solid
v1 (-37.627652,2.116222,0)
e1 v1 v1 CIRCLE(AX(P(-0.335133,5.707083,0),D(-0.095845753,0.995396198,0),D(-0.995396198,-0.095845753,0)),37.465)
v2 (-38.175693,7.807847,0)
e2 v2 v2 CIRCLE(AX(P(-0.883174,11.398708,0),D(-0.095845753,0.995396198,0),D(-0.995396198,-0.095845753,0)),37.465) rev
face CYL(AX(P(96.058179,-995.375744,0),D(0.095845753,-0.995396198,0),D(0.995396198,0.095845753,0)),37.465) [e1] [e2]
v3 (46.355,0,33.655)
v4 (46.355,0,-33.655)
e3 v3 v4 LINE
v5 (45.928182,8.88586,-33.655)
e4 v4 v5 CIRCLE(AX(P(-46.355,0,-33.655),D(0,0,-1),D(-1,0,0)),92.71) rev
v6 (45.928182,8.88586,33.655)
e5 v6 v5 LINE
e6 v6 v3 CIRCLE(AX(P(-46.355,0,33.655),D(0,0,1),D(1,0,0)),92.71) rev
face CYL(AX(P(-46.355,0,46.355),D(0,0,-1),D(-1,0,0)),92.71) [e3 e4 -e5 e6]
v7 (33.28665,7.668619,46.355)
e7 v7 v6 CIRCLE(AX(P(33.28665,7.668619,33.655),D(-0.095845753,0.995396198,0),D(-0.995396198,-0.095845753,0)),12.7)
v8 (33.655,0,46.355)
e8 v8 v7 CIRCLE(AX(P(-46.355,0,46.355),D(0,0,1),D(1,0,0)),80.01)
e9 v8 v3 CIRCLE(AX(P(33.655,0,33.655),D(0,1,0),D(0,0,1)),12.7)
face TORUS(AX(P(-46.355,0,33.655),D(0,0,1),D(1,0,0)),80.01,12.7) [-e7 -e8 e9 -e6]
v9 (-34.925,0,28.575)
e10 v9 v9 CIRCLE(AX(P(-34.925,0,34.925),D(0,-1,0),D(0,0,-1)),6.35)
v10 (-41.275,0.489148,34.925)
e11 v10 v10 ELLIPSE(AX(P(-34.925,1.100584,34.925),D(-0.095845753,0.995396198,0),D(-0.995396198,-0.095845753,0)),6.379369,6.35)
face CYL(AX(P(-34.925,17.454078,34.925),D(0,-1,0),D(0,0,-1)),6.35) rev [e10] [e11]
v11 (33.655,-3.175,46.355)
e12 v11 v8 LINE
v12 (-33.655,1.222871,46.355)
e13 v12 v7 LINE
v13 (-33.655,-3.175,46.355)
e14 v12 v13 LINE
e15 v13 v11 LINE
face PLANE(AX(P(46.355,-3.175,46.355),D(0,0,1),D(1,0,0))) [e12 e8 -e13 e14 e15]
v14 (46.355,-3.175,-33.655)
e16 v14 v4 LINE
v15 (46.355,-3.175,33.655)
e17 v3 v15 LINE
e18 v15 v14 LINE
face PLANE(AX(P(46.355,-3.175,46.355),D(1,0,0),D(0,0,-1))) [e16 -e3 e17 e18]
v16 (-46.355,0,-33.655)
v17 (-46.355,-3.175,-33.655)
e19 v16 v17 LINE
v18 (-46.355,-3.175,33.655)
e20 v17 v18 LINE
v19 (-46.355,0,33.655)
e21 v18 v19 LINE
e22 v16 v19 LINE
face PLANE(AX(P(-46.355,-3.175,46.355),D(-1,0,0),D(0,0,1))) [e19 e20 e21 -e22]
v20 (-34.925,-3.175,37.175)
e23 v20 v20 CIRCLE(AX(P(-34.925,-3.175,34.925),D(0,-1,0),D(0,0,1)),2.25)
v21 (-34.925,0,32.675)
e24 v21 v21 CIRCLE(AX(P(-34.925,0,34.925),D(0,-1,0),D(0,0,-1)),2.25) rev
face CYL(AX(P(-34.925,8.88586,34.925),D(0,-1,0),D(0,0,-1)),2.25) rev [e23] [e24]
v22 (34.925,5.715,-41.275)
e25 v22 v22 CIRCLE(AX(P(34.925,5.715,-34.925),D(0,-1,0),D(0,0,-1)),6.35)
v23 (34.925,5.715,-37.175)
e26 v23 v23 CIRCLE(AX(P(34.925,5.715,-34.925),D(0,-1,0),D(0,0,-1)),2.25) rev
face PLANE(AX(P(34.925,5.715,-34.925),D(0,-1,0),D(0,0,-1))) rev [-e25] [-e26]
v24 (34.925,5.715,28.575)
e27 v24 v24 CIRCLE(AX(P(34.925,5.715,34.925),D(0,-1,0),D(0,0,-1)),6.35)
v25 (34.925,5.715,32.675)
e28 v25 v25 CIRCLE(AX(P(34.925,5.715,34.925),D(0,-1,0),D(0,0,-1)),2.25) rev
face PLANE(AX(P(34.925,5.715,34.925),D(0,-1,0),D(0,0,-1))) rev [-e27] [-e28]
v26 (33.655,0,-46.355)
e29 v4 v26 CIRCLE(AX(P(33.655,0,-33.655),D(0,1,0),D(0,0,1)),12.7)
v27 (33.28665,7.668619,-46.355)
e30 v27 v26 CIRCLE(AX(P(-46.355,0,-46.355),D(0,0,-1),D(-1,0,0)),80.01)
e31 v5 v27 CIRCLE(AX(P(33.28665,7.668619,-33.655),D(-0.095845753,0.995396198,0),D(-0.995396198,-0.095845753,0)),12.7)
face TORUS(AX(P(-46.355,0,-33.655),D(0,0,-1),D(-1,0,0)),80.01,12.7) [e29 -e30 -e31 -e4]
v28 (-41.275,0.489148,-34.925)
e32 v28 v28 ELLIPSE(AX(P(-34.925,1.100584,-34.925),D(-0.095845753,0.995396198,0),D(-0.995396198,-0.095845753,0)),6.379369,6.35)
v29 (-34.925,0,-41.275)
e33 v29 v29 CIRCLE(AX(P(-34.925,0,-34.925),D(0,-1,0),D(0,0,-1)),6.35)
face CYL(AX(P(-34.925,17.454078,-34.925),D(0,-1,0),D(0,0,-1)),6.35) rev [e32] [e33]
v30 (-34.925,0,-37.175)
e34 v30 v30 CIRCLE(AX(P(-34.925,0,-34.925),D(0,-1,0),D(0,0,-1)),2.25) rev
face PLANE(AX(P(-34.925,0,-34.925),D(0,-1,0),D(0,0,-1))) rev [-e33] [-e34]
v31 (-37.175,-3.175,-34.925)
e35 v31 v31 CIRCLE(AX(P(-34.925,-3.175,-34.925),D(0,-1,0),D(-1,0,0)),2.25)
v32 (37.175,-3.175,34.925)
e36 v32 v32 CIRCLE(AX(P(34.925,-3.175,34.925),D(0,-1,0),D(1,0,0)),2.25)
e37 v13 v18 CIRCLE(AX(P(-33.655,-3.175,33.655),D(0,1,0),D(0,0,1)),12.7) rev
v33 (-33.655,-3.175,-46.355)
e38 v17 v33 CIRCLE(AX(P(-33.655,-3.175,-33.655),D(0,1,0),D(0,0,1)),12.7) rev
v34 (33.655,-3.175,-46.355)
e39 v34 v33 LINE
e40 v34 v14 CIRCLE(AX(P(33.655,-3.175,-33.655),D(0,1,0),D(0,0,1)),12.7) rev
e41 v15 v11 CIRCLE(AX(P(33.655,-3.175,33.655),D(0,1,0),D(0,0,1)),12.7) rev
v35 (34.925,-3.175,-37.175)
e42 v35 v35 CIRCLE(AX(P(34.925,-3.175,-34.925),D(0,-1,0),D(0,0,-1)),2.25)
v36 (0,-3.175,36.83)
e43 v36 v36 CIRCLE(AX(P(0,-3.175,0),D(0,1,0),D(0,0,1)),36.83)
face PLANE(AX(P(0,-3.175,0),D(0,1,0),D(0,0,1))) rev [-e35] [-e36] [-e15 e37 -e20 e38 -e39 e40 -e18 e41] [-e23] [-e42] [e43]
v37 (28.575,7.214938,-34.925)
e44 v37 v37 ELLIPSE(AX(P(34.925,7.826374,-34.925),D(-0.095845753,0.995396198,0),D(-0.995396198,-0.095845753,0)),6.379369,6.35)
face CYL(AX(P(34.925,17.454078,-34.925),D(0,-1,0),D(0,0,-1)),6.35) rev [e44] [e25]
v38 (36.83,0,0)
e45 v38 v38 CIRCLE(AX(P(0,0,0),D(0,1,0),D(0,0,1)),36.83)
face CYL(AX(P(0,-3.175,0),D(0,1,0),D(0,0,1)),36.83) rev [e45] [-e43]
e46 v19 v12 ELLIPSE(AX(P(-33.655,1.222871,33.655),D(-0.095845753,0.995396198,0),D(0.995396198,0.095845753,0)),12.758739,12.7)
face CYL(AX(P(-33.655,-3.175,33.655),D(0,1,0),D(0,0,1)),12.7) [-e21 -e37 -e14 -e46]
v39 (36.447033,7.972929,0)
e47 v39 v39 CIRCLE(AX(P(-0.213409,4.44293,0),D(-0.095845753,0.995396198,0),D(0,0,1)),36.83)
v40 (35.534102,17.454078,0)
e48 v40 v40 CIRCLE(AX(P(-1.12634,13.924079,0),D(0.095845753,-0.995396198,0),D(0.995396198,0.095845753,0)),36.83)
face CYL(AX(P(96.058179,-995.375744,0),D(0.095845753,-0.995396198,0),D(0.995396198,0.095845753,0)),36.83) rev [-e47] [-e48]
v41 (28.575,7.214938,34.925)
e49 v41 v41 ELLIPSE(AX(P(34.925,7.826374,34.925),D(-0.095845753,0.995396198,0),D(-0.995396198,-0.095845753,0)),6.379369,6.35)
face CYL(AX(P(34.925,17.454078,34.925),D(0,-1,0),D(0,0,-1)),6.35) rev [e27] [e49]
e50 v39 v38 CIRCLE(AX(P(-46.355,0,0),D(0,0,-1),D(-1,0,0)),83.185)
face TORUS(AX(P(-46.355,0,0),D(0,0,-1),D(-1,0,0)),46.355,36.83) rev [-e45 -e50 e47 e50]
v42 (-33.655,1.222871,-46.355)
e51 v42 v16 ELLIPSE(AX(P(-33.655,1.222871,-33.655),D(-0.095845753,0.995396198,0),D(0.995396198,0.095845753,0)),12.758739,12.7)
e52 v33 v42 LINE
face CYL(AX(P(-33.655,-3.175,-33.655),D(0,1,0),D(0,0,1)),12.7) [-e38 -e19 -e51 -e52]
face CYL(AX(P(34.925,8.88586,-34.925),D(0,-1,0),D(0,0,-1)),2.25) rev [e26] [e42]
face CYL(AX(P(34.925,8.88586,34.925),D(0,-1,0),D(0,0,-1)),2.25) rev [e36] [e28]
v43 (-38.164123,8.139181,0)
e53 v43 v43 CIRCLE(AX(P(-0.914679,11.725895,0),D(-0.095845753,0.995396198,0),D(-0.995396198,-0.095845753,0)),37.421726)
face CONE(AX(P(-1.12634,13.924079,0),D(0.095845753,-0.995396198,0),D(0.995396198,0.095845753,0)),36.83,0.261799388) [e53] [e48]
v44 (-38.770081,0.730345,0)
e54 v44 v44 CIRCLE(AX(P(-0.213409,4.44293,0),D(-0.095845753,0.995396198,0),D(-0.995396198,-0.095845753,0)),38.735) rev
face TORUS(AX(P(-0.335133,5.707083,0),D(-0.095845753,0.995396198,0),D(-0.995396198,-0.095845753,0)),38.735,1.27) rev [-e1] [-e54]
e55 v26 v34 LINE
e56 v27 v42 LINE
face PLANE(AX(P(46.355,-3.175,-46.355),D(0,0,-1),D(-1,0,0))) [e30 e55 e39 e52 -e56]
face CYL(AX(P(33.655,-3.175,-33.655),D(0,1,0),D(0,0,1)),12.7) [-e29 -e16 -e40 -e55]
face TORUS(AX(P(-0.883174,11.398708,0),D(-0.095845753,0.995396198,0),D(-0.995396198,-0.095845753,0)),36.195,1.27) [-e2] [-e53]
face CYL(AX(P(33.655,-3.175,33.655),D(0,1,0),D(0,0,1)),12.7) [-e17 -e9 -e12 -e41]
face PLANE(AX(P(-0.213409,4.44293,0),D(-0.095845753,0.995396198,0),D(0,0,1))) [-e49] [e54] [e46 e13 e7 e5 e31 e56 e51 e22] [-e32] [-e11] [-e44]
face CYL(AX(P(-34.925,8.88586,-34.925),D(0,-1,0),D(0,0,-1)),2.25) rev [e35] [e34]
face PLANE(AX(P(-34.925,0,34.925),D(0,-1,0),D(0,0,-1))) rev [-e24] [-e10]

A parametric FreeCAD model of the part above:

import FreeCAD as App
import Part
import Sketcher

V = App.Vector
Q = App.Units.Quantity


def edges_at(feature, points):
    """Names of the edges that pass closest to the given points."""
    edges = feature.Shape.Edges
    near = lambda p: min(range(len(edges)), key=lambda i: edges[i].distToShape(Part.Vertex(*p))[0])
    return sorted({f"Edge{near(p) + 1}" for p in points})

doc = App.newDocument("Part")
body = doc.addObject("PartDesign::Body", "Body")

# Sketch on XZ plane
sketch1 = doc.addObject("Sketcher::SketchObject", "Sketch")
body.addObject(sketch1)
sketch1.AttachmentSupport = (doc.XZ_Plane, [""])
sketch1.MapMode = "FlatFace"
sketch1.addGeometry([
    Part.LineSegment(V(-46, -46, 0), V(-46, 46, 0)),  # 0
    Part.LineSegment(V(-46, 46, 0), V(46, 46, 0)),  # 1
    Part.LineSegment(V(46, 46, 0), V(46, -46, 0)),  # 2
    Part.LineSegment(V(46, -46, 0), V(-46, -46, 0)),  # 3
    Part.Circle(V(0, 0, 0), V(0, 0, 1), 37),  # 4
], False)
sketch1.addConstraint([
    Sketcher.Constraint("Coincident", 0, 2, 1, 1),
    Sketcher.Constraint("Coincident", 1, 2, 2, 1),
    Sketcher.Constraint("Coincident", 2, 2, 3, 1),
    Sketcher.Constraint("Coincident", 3, 2, 0, 1),
    Sketcher.Constraint("Vertical", 0),
    Sketcher.Constraint("Horizontal", 1),
    Sketcher.Constraint("Vertical", 2),
    Sketcher.Constraint("Horizontal", 3),
    Sketcher.Constraint("Coincident", 4, 3, -1, 1),
    Sketcher.Constraint("Symmetric", 0, 2, 2, 2, -1, 1),
    Sketcher.Constraint("Equal", 3, 0),
    Sketcher.Constraint("Diameter", 4, Q("2.9 in")),
    Sketcher.Constraint("DistanceX", 1, 1, 1, 2, Q("3.65 in")),
])
pad1 = doc.addObject("PartDesign::Pad", "Pad")
body.addObject(pad1)
pad1.Profile = sketch1
pad1.Length = Q("0.125 in")

# Sketch on XZ plane
sketch2 = doc.addObject("Sketcher::SketchObject", "Sketch001")
body.addObject(sketch2)
sketch2.AttachmentSupport = (doc.XZ_Plane, [""])
sketch2.MapMode = "FlatFace"
sketch2.addGeometry([
    Part.LineSegment(V(-46, -46, 0), V(-46, 46, 0)),  # 0
    Part.LineSegment(V(-46, 46, 0), V(46, 46, 0)),  # 1
    Part.LineSegment(V(46, 46, 0), V(46, -46, 0)),  # 2
    Part.LineSegment(V(46, -46, 0), V(-46, -46, 0)),  # 3
    Part.Circle(V(0, 0, 0), V(0, 0, 1), 37),  # 4
], False)
sketch2.addGeometry(Part.LineSegment(V(-46, -46, 0), V(-46, 46, 0)), True)  # axis
sketch2.addConstraint([
    Sketcher.Constraint("Coincident", 0, 2, 1, 1),
    Sketcher.Constraint("Coincident", 1, 2, 2, 1),
    Sketcher.Constraint("Coincident", 2, 2, 3, 1),
    Sketcher.Constraint("Coincident", 3, 2, 0, 1),
    Sketcher.Constraint("Vertical", 0),
    Sketcher.Constraint("Horizontal", 1),
    Sketcher.Constraint("Vertical", 2),
    Sketcher.Constraint("Horizontal", 3),
    Sketcher.Constraint("Vertical", 5),
    Sketcher.Constraint("Coincident", 4, 3, -1, 1),
    Sketcher.Constraint("Coincident", 5, 1, 3, 2),
    Sketcher.Constraint("Symmetric", 0, 2, 2, 2, -1, 1),
    Sketcher.Constraint("Horizontal", 1, 2, 5, 2),
    Sketcher.Constraint("Equal", 3, 0),
    Sketcher.Constraint("Diameter", 4, Q("2.9 in")),
    Sketcher.Constraint("DistanceX", 1, 1, 1, 2, Q("3.65 in")),
])
revolution = doc.addObject("PartDesign::Revolution", "Revolution")
body.addObject(revolution)
revolution.Profile = sketch2
revolution.ReferenceAxis = (sketch2, ["Axis0"])
revolution.Angle = 5.5

# Sketch on XZ plane
sketch3 = doc.addObject("Sketcher::SketchObject", "Sketch002")
body.addObject(sketch3)
sketch3.AttachmentSupport = (doc.XZ_Plane, [""])
sketch3.MapMode = "FlatFace"
sketch3.AttachmentOffset = App.Placement(V(0, 0, 0.125 * 25.4), App.Rotation())
sketch3.addGeometry(Part.Circle(V(34.9, -34.9, 0), V(0, 0, 1), 2.2), False)
sketch3.addConstraint([
    Sketcher.Constraint("Diameter", 0, 4.5),
    Sketcher.Constraint("DistanceX", -1, 1, 0, 3, Q("1.375 in")),
    Sketcher.Constraint("DistanceY", 0, 3, -1, 1, Q("1.375 in")),
])
pocket1 = doc.addObject("PartDesign::Pocket", "Pocket")
body.addObject(pocket1)
pocket1.Profile = sketch3
pocket1.Type = "ThroughAll"
doc.recompute()

polarpattern = doc.addObject("PartDesign::PolarPattern", "PolarPattern")
body.addObject(polarpattern)
polarpattern.Originals = [pocket1]
polarpattern.Axis = (doc.Y_Axis, [""])
polarpattern.Angle = 360
polarpattern.Occurrences = 4
body.Tip = polarpattern
doc.recompute()

fillet = doc.addObject("PartDesign::Fillet", "Fillet")
body.addObject(fillet)
fillet.Base = (polarpattern, edges_at(polarpattern, [
    (46.248, 4.448, 46.355),
    (46.248, 4.448, -46.355),
    (-46.355, -1.587, -46.355),
    (46.355, -1.587, -46.355),
    (46.355, -1.587, 46.355),
    (-46.355, -1.587, 46.355),
]))
fillet.Radius = Q("0.5 in")

# Sketch on XY plane
sketch4 = doc.addObject("Sketcher::SketchObject", "Sketch003")
body.addObject(sketch4)
sketch4.AttachmentSupport = (doc.XY_Plane, [""])
sketch4.MapMode = "FlatFace"
sketch4.addGeometry([
    Part.LineSegment(V(-37.5, 0.9, 0), V(-36.9, 0.9, 0)),
    Part.LineSegment(V(-36.9, 0.9, 0), V(-37.8, 10.4, 0)),
    Part.LineSegment(V(-37.8, 10.4, 0), V(-38.2, 8, 0)),
    Part.LineSegment(V(-38.2, 8, 0), V(-37.5, 0.9, 0)),
], False)
sketch4.addGeometry(Part.LineSegment(V(-0.2, 4.4, 0), V(-1.1, 13.9, 0)), True)  # axis
sketch4.addConstraint([
    Sketcher.Constraint("Coincident", 0, 2, 1, 1),
    Sketcher.Constraint("Coincident", 1, 2, 2, 1),
    Sketcher.Constraint("Coincident", 2, 2, 3, 1),
    Sketcher.Constraint("Coincident", 3, 2, 0, 1),
    Sketcher.Constraint("Perpendicular", 0, 1),
    Sketcher.Constraint("Parallel", 1, 3),
    Sketcher.Constraint("Parallel", 3, 4),
    Sketcher.Constraint("Equal", 1, 4),
    Sketcher.Constraint("Angle", 0, Q("5.5 deg")),
    Sketcher.Constraint("Angle", 2, Q("-99.5 deg")),
    Sketcher.Constraint("Distance", 0, Q("0.025 in")),
    Sketcher.Constraint("Distance", 1, Q("0.375 in")),
    Sketcher.Constraint("DistanceY", 0, 2, 4, 1, 3.529998),
    Sketcher.Constraint("DistanceX", 0, 2, -1, 1, 36.873851),
    Sketcher.Constraint("DistanceY", -1, 1, 0, 2, 0.912931),
    Sketcher.Constraint("DistanceX", 4, 1, -1, 1, 0.21341),
])
revolution2 = doc.addObject("PartDesign::Revolution", "Revolution001")
body.addObject(revolution2)
revolution2.Profile = sketch4
revolution2.ReferenceAxis = (sketch4, ["Axis0"])
revolution2.Angle = 360
doc.recompute()

fillet2 = doc.addObject("PartDesign::Fillet", "Fillet001")
body.addObject(fillet2)
fillet2.Base = (revolution2, edges_at(revolution2, [(37.079, 8.034, 0), (36.393, 15.156, 0)]))
fillet2.Radius = Q("0.05 in")

# Sketch on XZ plane
sketch5 = doc.addObject("Sketcher::SketchObject", "Sketch004")
body.addObject(sketch5)
sketch5.AttachmentSupport = (doc.XZ_Plane, [""])
sketch5.MapMode = "FlatFace"
sketch5.addGeometry([
    Part.Circle(V(-35, 35, 0), V(0, 0, 1), 6),
    Part.Circle(V(-35, -35, 0), V(0, 0, 1), 6),
], False)
sketch5.addConstraint([
    Sketcher.Constraint("Equal", 0, 1),
    Sketcher.Constraint("Symmetric", 0, 3, 1, 3, -1),
    Sketcher.Constraint("Diameter", 0, Q("0.5 in")),
    Sketcher.Constraint("DistanceY", 1, 3, 0, 3, Q("2.75 in")),
    Sketcher.Constraint("DistanceX", 0, 3, -1, 1, Q("1.375 in")),
])
pocket2 = doc.addObject("PartDesign::Pocket", "Pocket001")
body.addObject(pocket2)
pocket2.Profile = sketch5
pocket2.Type = "ThroughAll"

# Sketch on XZ plane
sketch6 = doc.addObject("Sketcher::SketchObject", "Sketch005")
body.addObject(sketch6)
sketch6.AttachmentSupport = (doc.XZ_Plane, [""])
sketch6.MapMode = "FlatFace"
sketch6.AttachmentOffset = App.Placement(V(0, 0, -0.225 * 25.4), App.Rotation())
sketch6.addGeometry([
    Part.Circle(V(35, -35, 0), V(0, 0, 1), 6),
    Part.Circle(V(35, 35, 0), V(0, 0, 1), 6),
], False)
sketch6.addConstraint([
    Sketcher.Constraint("Equal", 0, 1),
    Sketcher.Constraint("Symmetric", 0, 3, 1, 3, -1),
    Sketcher.Constraint("Diameter", 0, Q("0.5 in")),
    Sketcher.Constraint("DistanceY", 0, 3, 1, 3, Q("2.75 in")),
    Sketcher.Constraint("DistanceX", -1, 1, 0, 3, Q("1.375 in")),
])
pocket3 = doc.addObject("PartDesign::Pocket", "Pocket002")
body.addObject(pocket3)
pocket3.Profile = sketch6
pocket3.Type = "ThroughAll"

doc.recompute()
